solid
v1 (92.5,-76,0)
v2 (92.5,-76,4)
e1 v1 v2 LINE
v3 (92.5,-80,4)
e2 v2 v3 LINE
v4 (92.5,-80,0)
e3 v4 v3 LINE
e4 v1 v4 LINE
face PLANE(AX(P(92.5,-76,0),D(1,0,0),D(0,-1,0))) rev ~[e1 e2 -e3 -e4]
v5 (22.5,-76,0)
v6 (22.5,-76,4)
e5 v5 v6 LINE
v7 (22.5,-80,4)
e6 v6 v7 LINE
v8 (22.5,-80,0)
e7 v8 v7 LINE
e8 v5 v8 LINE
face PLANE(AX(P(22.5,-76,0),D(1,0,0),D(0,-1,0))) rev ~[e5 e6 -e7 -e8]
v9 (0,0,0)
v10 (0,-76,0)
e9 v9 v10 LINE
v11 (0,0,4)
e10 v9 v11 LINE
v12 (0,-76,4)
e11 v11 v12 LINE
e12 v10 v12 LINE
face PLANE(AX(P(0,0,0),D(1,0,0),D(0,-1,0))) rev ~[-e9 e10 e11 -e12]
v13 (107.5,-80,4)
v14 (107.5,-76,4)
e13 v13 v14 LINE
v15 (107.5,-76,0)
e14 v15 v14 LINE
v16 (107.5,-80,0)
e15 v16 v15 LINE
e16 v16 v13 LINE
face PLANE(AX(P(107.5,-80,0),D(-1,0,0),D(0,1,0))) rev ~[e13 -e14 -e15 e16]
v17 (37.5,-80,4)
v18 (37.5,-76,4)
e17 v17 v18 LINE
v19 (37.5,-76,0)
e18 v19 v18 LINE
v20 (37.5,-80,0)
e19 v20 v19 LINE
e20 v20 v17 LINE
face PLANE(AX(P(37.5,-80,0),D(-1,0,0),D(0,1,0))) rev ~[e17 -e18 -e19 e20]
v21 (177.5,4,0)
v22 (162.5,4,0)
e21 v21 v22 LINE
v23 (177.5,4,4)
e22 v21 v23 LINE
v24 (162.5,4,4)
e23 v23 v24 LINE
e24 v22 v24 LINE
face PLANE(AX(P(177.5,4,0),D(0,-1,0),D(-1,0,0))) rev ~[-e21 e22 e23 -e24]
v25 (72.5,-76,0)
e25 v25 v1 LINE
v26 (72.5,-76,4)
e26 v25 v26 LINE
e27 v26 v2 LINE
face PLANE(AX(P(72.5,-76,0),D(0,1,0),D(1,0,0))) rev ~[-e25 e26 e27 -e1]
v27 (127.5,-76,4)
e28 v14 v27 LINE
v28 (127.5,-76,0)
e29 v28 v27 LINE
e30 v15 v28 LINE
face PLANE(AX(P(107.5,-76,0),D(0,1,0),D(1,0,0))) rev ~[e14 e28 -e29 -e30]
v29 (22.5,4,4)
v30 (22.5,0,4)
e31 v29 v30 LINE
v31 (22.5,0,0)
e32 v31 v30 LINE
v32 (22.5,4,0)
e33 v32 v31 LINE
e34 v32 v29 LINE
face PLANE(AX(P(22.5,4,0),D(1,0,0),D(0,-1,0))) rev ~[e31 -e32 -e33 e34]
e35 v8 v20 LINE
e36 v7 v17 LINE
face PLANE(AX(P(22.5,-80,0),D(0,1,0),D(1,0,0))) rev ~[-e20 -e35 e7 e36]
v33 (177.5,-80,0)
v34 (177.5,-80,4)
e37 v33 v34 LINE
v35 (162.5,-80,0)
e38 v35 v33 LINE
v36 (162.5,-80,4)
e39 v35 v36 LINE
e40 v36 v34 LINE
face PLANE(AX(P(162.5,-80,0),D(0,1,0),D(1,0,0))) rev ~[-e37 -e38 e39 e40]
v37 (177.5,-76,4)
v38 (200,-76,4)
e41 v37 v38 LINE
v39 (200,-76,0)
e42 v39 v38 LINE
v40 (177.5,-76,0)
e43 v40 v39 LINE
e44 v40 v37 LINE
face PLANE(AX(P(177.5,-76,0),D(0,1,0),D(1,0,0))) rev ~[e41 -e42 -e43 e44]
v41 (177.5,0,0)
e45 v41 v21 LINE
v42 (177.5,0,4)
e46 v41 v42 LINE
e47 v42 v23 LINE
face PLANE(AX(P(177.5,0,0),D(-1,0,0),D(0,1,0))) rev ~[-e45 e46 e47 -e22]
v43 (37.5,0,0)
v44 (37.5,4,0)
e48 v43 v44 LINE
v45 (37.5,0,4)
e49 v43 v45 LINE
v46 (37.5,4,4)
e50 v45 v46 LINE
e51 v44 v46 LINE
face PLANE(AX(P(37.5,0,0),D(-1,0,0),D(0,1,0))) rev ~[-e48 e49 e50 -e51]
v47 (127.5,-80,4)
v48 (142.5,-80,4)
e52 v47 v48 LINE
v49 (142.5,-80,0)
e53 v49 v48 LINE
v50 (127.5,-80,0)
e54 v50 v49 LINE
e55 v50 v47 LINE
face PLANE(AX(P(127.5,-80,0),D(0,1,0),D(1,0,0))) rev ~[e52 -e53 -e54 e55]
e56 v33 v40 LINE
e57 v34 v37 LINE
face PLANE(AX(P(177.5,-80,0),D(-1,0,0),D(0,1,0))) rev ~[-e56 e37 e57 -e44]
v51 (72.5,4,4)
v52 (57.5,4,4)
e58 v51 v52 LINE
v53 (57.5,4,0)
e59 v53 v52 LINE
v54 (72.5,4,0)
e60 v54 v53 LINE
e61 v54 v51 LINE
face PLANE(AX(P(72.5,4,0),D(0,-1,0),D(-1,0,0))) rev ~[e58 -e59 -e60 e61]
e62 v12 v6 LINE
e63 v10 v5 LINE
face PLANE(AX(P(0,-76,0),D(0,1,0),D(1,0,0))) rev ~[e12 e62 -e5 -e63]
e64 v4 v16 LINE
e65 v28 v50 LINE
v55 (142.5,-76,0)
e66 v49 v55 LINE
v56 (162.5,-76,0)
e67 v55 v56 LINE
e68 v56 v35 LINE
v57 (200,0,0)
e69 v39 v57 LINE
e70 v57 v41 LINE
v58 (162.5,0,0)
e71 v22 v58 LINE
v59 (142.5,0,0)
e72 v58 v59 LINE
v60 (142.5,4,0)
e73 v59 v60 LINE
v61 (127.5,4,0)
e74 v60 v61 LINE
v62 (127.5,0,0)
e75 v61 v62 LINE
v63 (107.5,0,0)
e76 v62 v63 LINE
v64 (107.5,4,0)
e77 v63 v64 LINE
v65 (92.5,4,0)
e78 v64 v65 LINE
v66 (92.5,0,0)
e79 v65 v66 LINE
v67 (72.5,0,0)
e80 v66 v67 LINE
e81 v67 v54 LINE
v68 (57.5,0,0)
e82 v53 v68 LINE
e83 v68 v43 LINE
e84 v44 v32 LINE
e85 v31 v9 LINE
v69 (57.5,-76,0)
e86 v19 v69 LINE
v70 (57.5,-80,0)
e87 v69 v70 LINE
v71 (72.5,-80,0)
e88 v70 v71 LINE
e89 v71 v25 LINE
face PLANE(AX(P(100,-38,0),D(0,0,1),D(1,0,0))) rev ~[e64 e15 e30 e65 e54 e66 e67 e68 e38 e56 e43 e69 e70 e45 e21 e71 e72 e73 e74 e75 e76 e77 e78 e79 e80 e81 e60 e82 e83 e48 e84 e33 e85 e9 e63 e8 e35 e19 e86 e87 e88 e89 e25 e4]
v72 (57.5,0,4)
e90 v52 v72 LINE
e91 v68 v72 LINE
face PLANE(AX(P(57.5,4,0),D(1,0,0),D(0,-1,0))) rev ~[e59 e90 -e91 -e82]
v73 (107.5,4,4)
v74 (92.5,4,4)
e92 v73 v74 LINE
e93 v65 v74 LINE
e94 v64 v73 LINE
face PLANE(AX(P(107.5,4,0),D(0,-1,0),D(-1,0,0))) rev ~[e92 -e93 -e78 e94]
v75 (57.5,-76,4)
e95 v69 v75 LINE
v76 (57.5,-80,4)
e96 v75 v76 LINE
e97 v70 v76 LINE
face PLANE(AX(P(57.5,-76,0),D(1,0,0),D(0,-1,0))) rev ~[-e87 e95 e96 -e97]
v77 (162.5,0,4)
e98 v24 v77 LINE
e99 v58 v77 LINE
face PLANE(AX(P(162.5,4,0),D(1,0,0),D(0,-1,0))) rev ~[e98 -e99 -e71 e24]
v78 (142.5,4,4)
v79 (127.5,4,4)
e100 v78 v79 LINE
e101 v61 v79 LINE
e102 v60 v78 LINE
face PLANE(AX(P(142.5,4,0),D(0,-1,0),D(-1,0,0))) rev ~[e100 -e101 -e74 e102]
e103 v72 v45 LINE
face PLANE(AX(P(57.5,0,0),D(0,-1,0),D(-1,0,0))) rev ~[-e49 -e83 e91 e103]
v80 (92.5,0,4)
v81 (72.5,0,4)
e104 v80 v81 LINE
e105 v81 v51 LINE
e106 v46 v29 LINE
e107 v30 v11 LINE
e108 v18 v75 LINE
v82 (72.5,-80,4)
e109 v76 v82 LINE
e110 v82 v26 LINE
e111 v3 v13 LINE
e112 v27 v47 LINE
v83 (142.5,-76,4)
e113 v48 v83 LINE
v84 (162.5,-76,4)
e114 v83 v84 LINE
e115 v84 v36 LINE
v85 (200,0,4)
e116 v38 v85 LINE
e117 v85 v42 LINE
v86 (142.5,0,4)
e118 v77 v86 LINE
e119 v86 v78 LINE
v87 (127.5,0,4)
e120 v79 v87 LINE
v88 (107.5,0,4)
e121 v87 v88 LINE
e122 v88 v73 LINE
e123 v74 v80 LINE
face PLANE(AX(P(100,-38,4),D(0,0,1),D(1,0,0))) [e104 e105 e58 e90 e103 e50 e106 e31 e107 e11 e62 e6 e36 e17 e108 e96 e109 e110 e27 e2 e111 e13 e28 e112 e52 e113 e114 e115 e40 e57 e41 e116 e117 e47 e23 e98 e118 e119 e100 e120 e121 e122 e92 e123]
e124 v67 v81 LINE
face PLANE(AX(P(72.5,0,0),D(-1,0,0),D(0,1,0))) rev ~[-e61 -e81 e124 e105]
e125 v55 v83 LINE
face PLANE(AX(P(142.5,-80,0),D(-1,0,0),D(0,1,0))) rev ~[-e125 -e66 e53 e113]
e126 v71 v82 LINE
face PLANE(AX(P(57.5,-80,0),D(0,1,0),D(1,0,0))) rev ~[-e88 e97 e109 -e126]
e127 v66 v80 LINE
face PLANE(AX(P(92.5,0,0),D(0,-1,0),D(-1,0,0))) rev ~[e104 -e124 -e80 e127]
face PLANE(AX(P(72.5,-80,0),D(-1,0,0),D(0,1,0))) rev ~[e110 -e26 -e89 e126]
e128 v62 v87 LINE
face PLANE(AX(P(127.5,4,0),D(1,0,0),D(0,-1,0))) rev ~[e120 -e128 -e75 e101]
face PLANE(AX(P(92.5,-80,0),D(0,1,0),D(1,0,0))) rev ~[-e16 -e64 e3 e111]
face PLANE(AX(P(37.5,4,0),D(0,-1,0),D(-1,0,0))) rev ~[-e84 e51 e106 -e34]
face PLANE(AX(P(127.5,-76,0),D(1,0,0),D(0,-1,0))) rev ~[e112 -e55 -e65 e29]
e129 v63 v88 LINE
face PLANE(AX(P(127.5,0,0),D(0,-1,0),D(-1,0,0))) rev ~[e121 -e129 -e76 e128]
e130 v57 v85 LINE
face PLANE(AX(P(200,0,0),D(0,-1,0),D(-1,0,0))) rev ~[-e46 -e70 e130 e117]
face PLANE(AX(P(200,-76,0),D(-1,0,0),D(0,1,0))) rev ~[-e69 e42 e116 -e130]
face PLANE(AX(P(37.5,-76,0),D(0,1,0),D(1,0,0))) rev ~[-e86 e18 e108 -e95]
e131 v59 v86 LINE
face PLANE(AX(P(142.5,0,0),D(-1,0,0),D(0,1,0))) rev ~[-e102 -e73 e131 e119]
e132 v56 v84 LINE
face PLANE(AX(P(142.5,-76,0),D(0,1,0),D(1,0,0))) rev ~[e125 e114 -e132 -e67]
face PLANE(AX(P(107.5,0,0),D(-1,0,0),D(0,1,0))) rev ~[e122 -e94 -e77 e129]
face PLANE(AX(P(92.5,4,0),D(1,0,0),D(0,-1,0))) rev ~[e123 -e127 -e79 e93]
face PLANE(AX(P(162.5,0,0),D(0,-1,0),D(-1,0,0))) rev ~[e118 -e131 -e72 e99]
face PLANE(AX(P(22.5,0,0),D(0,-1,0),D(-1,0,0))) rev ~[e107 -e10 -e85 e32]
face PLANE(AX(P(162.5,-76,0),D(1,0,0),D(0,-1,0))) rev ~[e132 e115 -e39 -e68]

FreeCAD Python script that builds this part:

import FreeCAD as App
import Part
import Sketcher

doc = App.newDocument("Part")
body = doc.addObject("PartDesign::Body", "Body")

# Sketch on XY plane
sketch1 = body.newObject("Sketcher::SketchObject", "Sketch")
sketch1.AttachmentSupport = (doc.getObject("XY_Plane"), [""])
sketch1.MapMode = "FlatFace"
sketch1.addGeometry([
    Part.LineSegment(App.Vector(37.5, -76, 0), App.Vector(57.5, -76, 0)),  # 0
    Part.LineSegment(App.Vector(57.5, -76, 0), App.Vector(57.5, -80, 0)),  # 1
    Part.LineSegment(App.Vector(57.5, -80, 0), App.Vector(72.5, -80, 0)),  # 2
    Part.LineSegment(App.Vector(72.5, -80, 0), App.Vector(72.5, -76, 0)),  # 3
    Part.LineSegment(App.Vector(72.5, -76, 0), App.Vector(92.5, -76, 0)),  # 4
    Part.LineSegment(App.Vector(92.5, -76, 0), App.Vector(92.5, -80, 0)),  # 5
    Part.LineSegment(App.Vector(92.5, -80, 0), App.Vector(107.5, -80, 0)),  # 6
    Part.LineSegment(App.Vector(107.5, -80, 0), App.Vector(107.5, -76, 0)),  # 7
    Part.LineSegment(App.Vector(107.5, -76, 0), App.Vector(127.5, -76, 0)),  # 8
    Part.LineSegment(App.Vector(127.5, -76, 0), App.Vector(127.5, -80, 0)),  # 9
    Part.LineSegment(App.Vector(127.5, -80, 0), App.Vector(142.5, -80, 0)),  # 10
    Part.LineSegment(App.Vector(142.5, -80, 0), App.Vector(142.5, -76, 0)),  # 11
    Part.LineSegment(App.Vector(142.5, -76, 0), App.Vector(162.5, -76, 0)),  # 12
    Part.LineSegment(App.Vector(162.5, -76, 0), App.Vector(162.5, -80, 0)),  # 13
    Part.LineSegment(App.Vector(162.5, -80, 0), App.Vector(177.5, -80, 0)),  # 14
    Part.LineSegment(App.Vector(177.5, -80, 0), App.Vector(177.5, -76, 0)),  # 15
    Part.LineSegment(App.Vector(177.5, -76, 0), App.Vector(200, -76, 0)),  # 16
    Part.LineSegment(App.Vector(200, -76, 0), App.Vector(200, 0, 0)),  # 17
    Part.LineSegment(App.Vector(200, 0, 0), App.Vector(177.5, 0, 0)),  # 18
    Part.LineSegment(App.Vector(177.5, 0, 0), App.Vector(177.5, 4, 0)),  # 19
    Part.LineSegment(App.Vector(177.5, 4, 0), App.Vector(162.5, 4, 0)),  # 20
    Part.LineSegment(App.Vector(162.5, 4, 0), App.Vector(162.5, 0, 0)),  # 21
    Part.LineSegment(App.Vector(162.5, 0, 0), App.Vector(142.5, 0, 0)),  # 22
    Part.LineSegment(App.Vector(142.5, 0, 0), App.Vector(142.5, 4, 0)),  # 23
    Part.LineSegment(App.Vector(142.5, 4, 0), App.Vector(127.5, 4, 0)),  # 24
    Part.LineSegment(App.Vector(127.5, 4, 0), App.Vector(127.5, 0, 0)),  # 25
    Part.LineSegment(App.Vector(127.5, 0, 0), App.Vector(107.5, 0, 0)),  # 26
    Part.LineSegment(App.Vector(107.5, 0, 0), App.Vector(107.5, 4, 0)),  # 27
    Part.LineSegment(App.Vector(107.5, 4, 0), App.Vector(92.5, 4, 0)),  # 28
    Part.LineSegment(App.Vector(92.5, 4, 0), App.Vector(92.5, 0, 0)),  # 29
    Part.LineSegment(App.Vector(92.5, 0, 0), App.Vector(72.5, 0, 0)),  # 30
    Part.LineSegment(App.Vector(72.5, 0, 0), App.Vector(72.5, 4, 0)),  # 31
    Part.LineSegment(App.Vector(72.5, 4, 0), App.Vector(57.5, 4, 0)),  # 32
    Part.LineSegment(App.Vector(57.5, 4, 0), App.Vector(57.5, 0, 0)),  # 33
    Part.LineSegment(App.Vector(57.5, 0, 0), App.Vector(37.5, 0, 0)),  # 34
    Part.LineSegment(App.Vector(37.5, 0, 0), App.Vector(37.5, 4, 0)),  # 35
    Part.LineSegment(App.Vector(37.5, 4, 0), App.Vector(22.5, 4, 0)),  # 36
    Part.LineSegment(App.Vector(22.5, 4, 0), App.Vector(22.5, 0, 0)),  # 37
    Part.LineSegment(App.Vector(22.5, 0, 0), App.Vector(0, 0, 0)),  # 38
    Part.LineSegment(App.Vector(0, 0, 0), App.Vector(0, -76, 0)),  # 39
    Part.LineSegment(App.Vector(0, -76, 0), App.Vector(22.5, -76, 0)),  # 40
    Part.LineSegment(App.Vector(22.5, -76, 0), App.Vector(22.5, -80, 0)),  # 41
    Part.LineSegment(App.Vector(22.5, -80, 0), App.Vector(37.5, -80, 0)),  # 42
    Part.LineSegment(App.Vector(37.5, -80, 0), App.Vector(37.5, -76, 0)),  # 43
], False)
sketch1.addConstraint([
    Sketcher.Constraint("Coincident", 0, 2, 1, 1),
    Sketcher.Constraint("Coincident", 1, 2, 2, 1),
    Sketcher.Constraint("Coincident", 2, 2, 3, 1),
    Sketcher.Constraint("Coincident", 3, 2, 4, 1),
    Sketcher.Constraint("Coincident", 4, 2, 5, 1),
    Sketcher.Constraint("Coincident", 5, 2, 6, 1),
    Sketcher.Constraint("Coincident", 6, 2, 7, 1),
    Sketcher.Constraint("Coincident", 7, 2, 8, 1),
    Sketcher.Constraint("Coincident", 8, 2, 9, 1),
    Sketcher.Constraint("Coincident", 9, 2, 10, 1),
    Sketcher.Constraint("Coincident", 10, 2, 11, 1),
    Sketcher.Constraint("Coincident", 11, 2, 12, 1),
    Sketcher.Constraint("Coincident", 12, 2, 13, 1),
    Sketcher.Constraint("Coincident", 13, 2, 14, 1),
    Sketcher.Constraint("Coincident", 14, 2, 15, 1),
    Sketcher.Constraint("Coincident", 15, 2, 16, 1),
    Sketcher.Constraint("Coincident", 16, 2, 17, 1),
    Sketcher.Constraint("Coincident", 17, 2, 18, 1),
    Sketcher.Constraint("Coincident", 18, 2, 19, 1),
    Sketcher.Constraint("Coincident", 19, 2, 20, 1),
    Sketcher.Constraint("Coincident", 20, 2, 21, 1),
    Sketcher.Constraint("Coincident", 21, 2, 22, 1),
    Sketcher.Constraint("Coincident", 22, 2, 23, 1),
    Sketcher.Constraint("Coincident", 23, 2, 24, 1),
    Sketcher.Constraint("Coincident", 24, 2, 25, 1),
    Sketcher.Constraint("Coincident", 25, 2, 26, 1),
    Sketcher.Constraint("Coincident", 26, 2, 27, 1),
    Sketcher.Constraint("Coincident", 27, 2, 28, 1),
    Sketcher.Constraint("Coincident", 28, 2, 29, 1),
    Sketcher.Constraint("Coincident", 29, 2, 30, 1),
    Sketcher.Constraint("Coincident", 30, 2, 31, 1),
    Sketcher.Constraint("Coincident", 31, 2, 32, 1),
    Sketcher.Constraint("Coincident", 32, 2, 33, 1),
    Sketcher.Constraint("Coincident", 33, 2, 34, 1),
    Sketcher.Constraint("Coincident", 34, 2, 35, 1),
    Sketcher.Constraint("Coincident", 35, 2, 36, 1),
    Sketcher.Constraint("Coincident", 36, 2, 37, 1),
    Sketcher.Constraint("Coincident", 37, 2, 38, 1),
    Sketcher.Constraint("Coincident", 38, 2, 39, 1),
    Sketcher.Constraint("Coincident", 39, 2, 40, 1),
    Sketcher.Constraint("Coincident", 40, 2, 41, 1),
    Sketcher.Constraint("Coincident", 41, 2, 42, 1),
    Sketcher.Constraint("Coincident", 42, 2, 43, 1),
    Sketcher.Constraint("Coincident", 43, 2, 0, 1),
    Sketcher.Constraint("Horizontal", 0),
    Sketcher.Constraint("Vertical", 1),
    Sketcher.Constraint("Horizontal", 2),
    Sketcher.Constraint("Vertical", 3),
    Sketcher.Constraint("Horizontal", 4),
    Sketcher.Constraint("Vertical", 5),
    Sketcher.Constraint("Horizontal", 6),
    Sketcher.Constraint("Vertical", 7),
    Sketcher.Constraint("Horizontal", 8),
    Sketcher.Constraint("Vertical", 9),
    Sketcher.Constraint("Horizontal", 10),
    Sketcher.Constraint("Vertical", 11),
    Sketcher.Constraint("Horizontal", 12),
    Sketcher.Constraint("Vertical", 13),
    Sketcher.Constraint("Horizontal", 14),
    Sketcher.Constraint("Vertical", 15),
    Sketcher.Constraint("Horizontal", 16),
    Sketcher.Constraint("Vertical", 17),
    Sketcher.Constraint("Horizontal", 18),
    Sketcher.Constraint("Vertical", 19),
    Sketcher.Constraint("Horizontal", 20),
    Sketcher.Constraint("Vertical", 21),
    Sketcher.Constraint("Horizontal", 22),
    Sketcher.Constraint("Vertical", 23),
    Sketcher.Constraint("Horizontal", 24),
    Sketcher.Constraint("Vertical", 25),
    Sketcher.Constraint("Horizontal", 26),
    Sketcher.Constraint("Vertical", 27),
    Sketcher.Constraint("Horizontal", 28),
    Sketcher.Constraint("Vertical", 29),
    Sketcher.Constraint("Horizontal", 30),
    Sketcher.Constraint("Vertical", 31),
    Sketcher.Constraint("Horizontal", 32),
    Sketcher.Constraint("Vertical", 33),
    Sketcher.Constraint("Horizontal", 34),
    Sketcher.Constraint("Vertical", 35),
    Sketcher.Constraint("Horizontal", 36),
    Sketcher.Constraint("Vertical", 37),
    Sketcher.Constraint("Horizontal", 38),
    Sketcher.Constraint("Vertical", 39),
    Sketcher.Constraint("Horizontal", 40),
    Sketcher.Constraint("Vertical", 41),
    Sketcher.Constraint("Horizontal", 42),
    Sketcher.Constraint("Vertical", 43),
    Sketcher.Constraint("Coincident", 38, 2, -1, 1),
    Sketcher.Constraint("PointOnObject", 17, 2, -1),
    Sketcher.Constraint("PointOnObject", 21, 2, -1),
    Sketcher.Constraint("PointOnObject", 25, 2, -1),
    Sketcher.Constraint("PointOnObject", 29, 2, -1),
    Sketcher.Constraint("PointOnObject", 33, 2, -1),
    Sketcher.Constraint("Horizontal", 0, 2, 3, 2),
    Sketcher.Constraint("Horizontal", 2, 2, 5, 2),
    Sketcher.Constraint("Horizontal", 4, 2, 7, 2),
    Sketcher.Constraint("Horizontal", 6, 2, 9, 2),
    Sketcher.Constraint("Horizontal", 8, 2, 11, 2),
    Sketcher.Constraint("Horizontal", 10, 2, 13, 2),
    Sketcher.Constraint("Horizontal", 12, 2, 15, 2),
    Sketcher.Constraint("Horizontal", 20, 2, 23, 2),
    Sketcher.Constraint("Horizontal", 24, 2, 27, 2),
    Sketcher.Constraint("Horizontal", 28, 2, 31, 2),
    Sketcher.Constraint("Horizontal", 32, 2, 35, 2),
    Sketcher.Constraint("Horizontal", 16, 2, 39, 2),
    Sketcher.Constraint("Horizontal", 14, 2, 41, 2),
    Sketcher.Constraint("Vertical", 15, 2, 18, 2),
    Sketcher.Constraint("Vertical", 13, 2, 20, 2),
    Sketcher.Constraint("Vertical", 11, 2, 22, 2),
    Sketcher.Constraint("Vertical", 9, 2, 24, 2),
    Sketcher.Constraint("Vertical", 7, 2, 26, 2),
    Sketcher.Constraint("Vertical", 5, 2, 28, 2),
    Sketcher.Constraint("Vertical", 3, 2, 30, 2),
    Sketcher.Constraint("Vertical", 1, 2, 32, 2),
    Sketcher.Constraint("Vertical", 37, 2, 40, 2),
    Sketcher.Constraint("Vertical", 35, 2, 42, 2),
    Sketcher.Constraint("Equal", 0, 4),
    Sketcher.Constraint("Equal", 2, 6),
    Sketcher.Constraint("Equal", 4, 8),
    Sketcher.Constraint("Equal", 6, 10),
    Sketcher.Constraint("Equal", 8, 12),
    Sketcher.Constraint("Equal", 10, 14),
    Sketcher.Constraint("Equal", 32, 36),
    Sketcher.Constraint("Equal", 18, 38),
    Sketcher.Constraint("Equal", 15, 19),
    Sketcher.Constraint("DistanceX", 0, 1, 0, 2, 20.0),
    Sketcher.Constraint("DistanceX", 2, 1, 2, 2, 15.0),
    Sketcher.Constraint("DistanceY", 1, 2, 1, 1, 4.0),
    Sketcher.Constraint("DistanceY", 17, 1, 17, 2, 76.0),
    Sketcher.Constraint("DistanceX", 16, 1, 16, 2, 22.5),
])
pad1 = body.newObject("PartDesign::Pad", "Pad")
pad1.Profile = sketch1
pad1.Length = 4

doc.recompute()
